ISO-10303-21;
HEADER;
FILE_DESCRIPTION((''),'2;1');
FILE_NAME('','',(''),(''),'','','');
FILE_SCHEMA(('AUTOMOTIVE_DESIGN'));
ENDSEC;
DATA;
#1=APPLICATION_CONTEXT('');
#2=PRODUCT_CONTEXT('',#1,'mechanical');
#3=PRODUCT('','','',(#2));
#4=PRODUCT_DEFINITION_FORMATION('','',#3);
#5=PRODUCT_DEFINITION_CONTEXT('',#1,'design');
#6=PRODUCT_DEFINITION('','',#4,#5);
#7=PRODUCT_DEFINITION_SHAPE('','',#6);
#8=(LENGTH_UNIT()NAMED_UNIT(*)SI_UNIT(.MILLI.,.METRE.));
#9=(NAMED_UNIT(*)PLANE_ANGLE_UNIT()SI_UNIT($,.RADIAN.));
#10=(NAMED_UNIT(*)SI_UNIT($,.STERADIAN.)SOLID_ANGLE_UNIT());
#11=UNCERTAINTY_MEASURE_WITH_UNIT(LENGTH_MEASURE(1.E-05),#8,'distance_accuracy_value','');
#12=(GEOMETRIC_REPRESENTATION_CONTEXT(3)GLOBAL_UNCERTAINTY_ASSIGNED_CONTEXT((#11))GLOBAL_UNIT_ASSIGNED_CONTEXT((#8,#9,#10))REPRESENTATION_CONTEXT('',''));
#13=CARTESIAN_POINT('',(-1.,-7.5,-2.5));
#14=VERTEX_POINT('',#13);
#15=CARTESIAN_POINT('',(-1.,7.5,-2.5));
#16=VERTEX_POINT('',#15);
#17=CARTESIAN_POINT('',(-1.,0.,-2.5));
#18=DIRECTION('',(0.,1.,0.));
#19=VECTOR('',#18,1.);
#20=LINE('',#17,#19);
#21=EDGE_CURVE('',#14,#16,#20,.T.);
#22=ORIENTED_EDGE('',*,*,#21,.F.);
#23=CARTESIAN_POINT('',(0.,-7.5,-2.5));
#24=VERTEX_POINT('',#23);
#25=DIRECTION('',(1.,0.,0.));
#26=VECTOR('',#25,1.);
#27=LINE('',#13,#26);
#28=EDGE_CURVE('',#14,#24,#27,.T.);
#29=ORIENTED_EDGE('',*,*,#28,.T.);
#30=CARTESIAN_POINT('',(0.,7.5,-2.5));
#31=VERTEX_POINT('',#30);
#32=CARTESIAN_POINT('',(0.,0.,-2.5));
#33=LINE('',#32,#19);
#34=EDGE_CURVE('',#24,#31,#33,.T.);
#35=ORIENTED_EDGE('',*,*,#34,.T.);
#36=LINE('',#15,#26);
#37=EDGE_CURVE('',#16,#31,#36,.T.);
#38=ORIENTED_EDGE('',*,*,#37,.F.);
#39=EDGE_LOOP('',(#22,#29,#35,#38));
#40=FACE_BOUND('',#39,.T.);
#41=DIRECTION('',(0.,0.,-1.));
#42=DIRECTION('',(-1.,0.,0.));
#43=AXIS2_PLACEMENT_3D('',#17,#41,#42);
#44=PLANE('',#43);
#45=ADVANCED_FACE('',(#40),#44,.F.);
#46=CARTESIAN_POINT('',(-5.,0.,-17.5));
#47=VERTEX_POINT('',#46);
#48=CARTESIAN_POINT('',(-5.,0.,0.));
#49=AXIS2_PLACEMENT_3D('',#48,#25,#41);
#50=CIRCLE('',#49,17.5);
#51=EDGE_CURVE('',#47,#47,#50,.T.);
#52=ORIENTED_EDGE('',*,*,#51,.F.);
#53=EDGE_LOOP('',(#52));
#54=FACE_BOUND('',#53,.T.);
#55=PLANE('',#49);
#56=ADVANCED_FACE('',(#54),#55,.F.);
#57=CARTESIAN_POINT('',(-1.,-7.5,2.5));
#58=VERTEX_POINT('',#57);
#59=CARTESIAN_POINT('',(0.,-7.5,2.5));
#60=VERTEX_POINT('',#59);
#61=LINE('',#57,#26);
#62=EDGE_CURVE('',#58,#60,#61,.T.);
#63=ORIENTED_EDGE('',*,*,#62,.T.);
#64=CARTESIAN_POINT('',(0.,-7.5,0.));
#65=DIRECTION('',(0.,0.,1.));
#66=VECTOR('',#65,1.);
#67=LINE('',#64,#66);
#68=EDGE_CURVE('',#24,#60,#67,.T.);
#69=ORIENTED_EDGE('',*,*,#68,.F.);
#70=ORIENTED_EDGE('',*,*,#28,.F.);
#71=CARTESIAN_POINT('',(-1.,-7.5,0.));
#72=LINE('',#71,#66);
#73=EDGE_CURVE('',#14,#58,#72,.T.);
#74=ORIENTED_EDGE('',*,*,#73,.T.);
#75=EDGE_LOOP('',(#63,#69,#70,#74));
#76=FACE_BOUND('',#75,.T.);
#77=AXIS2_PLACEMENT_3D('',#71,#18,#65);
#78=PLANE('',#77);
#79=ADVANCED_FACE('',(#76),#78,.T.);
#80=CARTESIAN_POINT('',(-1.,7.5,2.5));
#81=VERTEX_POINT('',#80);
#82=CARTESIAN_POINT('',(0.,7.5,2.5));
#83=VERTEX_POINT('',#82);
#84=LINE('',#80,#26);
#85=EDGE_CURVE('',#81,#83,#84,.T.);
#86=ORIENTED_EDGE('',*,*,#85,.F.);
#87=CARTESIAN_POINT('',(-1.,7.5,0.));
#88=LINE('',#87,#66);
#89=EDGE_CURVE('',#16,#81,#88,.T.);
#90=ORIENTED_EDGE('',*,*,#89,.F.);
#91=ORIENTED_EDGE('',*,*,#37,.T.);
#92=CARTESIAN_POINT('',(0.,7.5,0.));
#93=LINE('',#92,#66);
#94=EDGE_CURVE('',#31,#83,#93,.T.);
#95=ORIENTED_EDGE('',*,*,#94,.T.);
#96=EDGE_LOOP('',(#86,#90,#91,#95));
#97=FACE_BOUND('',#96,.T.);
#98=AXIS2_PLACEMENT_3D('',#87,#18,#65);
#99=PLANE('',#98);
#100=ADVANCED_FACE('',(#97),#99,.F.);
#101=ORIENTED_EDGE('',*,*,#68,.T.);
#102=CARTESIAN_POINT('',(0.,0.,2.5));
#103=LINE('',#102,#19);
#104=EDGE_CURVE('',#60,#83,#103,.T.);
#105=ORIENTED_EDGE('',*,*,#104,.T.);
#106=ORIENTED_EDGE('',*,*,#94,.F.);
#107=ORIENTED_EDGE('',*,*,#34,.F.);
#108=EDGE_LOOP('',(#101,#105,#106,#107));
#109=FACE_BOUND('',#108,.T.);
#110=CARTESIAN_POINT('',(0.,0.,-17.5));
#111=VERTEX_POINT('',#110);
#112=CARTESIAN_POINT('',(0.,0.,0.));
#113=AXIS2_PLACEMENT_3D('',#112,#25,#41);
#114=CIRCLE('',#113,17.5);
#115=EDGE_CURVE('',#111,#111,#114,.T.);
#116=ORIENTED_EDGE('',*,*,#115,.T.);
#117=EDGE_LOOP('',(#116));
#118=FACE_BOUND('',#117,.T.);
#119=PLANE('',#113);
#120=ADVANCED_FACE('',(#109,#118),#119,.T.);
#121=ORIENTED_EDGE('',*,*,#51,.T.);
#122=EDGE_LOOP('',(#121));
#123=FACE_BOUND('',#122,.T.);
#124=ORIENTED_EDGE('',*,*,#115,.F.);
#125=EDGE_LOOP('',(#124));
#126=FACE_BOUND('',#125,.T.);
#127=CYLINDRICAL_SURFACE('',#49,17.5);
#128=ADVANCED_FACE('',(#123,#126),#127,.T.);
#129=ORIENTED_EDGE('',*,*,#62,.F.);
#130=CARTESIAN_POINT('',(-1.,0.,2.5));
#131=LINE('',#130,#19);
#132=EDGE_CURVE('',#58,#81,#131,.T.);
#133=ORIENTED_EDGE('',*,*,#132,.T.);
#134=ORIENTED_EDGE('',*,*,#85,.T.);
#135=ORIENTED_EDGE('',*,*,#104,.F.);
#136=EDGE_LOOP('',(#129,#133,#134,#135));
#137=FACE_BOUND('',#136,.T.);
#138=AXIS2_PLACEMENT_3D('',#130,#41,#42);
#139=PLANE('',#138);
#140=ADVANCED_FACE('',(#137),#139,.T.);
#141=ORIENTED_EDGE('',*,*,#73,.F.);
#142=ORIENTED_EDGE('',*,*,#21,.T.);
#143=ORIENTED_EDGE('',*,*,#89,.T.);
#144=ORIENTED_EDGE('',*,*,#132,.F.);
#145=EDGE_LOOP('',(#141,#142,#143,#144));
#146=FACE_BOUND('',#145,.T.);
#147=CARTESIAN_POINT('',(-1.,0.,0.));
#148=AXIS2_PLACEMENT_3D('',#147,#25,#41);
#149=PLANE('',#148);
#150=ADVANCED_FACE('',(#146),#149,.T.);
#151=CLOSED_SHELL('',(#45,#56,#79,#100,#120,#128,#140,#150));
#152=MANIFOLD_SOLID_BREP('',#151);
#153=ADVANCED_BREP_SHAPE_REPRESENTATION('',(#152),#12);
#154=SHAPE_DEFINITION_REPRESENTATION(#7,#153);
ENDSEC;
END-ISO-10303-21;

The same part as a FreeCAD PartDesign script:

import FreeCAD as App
import Part
import Sketcher
from FreeCAD import Vector
Q = App.Units.Quantity


def add_polygon(sketch, points):
    """Adds a closed chain of lines whose ends are joined by coincident constraints."""
    first, n = sketch.GeometryCount, len(points)
    for a, b in zip(points, points[1:] + points[:1]):
        sketch.addGeometry(Part.LineSegment(App.Vector(*a, 0), App.Vector(*b, 0)), False)
    for i in range(n):
        sketch.addConstraint(Sketcher.Constraint("Coincident", first + i, 2, first + (i + 1) % n, 1))

doc = App.newDocument("Part")
body = doc.addObject("PartDesign::Body", "Body")

sketch1 = body.newObject("Sketcher::SketchObject", "Sketch")
sketch1.AttachmentSupport = (doc.getObject("YZ_Plane"), [""])
sketch1.MapMode = "FlatFace"
sketch1.addGeometry(Part.Circle(Vector(0, 0, 0), Vector(0, 0, 1), 17.5), False)
sketch1.addConstraint([
    Sketcher.Constraint("Coincident", 0, 3, -1, 1),
    Sketcher.Constraint("Diameter", 0, Q("35 mm")),
])
pad1 = body.newObject("PartDesign::Pad", "Pad")
pad1.Profile = sketch1
pad1.Length = 5
pad1.Reversed = True

sketch2 = body.newObject("Sketcher::SketchObject", "Sketch001")
sketch2.AttachmentSupport = (doc.getObject("YZ_Plane"), [""])
sketch2.MapMode = "FlatFace"
add_polygon(sketch2, [(7.5, 2.5), (-7.5, 2.5), (-7.5, -2.5), (7.5, -2.5)])
sketch2.addConstraint([
    Sketcher.Constraint("Horizontal", 0),
    Sketcher.Constraint("Vertical", 1),
    Sketcher.Constraint("Horizontal", 2),
    Sketcher.Constraint("Vertical", 3),
    Sketcher.Constraint("Symmetric", 0, 2, 2, 2, -1, 1),
    Sketcher.Constraint("DistanceX", 0, 2, 0, 1, Q("15 mm")),
    Sketcher.Constraint("DistanceY", 1, 2, 1, 1, Q("5 mm")),
])
pocket1 = body.newObject("PartDesign::Pocket", "Pocket")
pocket1.Profile = sketch2
pocket1.Length = 1

doc.recompute()
